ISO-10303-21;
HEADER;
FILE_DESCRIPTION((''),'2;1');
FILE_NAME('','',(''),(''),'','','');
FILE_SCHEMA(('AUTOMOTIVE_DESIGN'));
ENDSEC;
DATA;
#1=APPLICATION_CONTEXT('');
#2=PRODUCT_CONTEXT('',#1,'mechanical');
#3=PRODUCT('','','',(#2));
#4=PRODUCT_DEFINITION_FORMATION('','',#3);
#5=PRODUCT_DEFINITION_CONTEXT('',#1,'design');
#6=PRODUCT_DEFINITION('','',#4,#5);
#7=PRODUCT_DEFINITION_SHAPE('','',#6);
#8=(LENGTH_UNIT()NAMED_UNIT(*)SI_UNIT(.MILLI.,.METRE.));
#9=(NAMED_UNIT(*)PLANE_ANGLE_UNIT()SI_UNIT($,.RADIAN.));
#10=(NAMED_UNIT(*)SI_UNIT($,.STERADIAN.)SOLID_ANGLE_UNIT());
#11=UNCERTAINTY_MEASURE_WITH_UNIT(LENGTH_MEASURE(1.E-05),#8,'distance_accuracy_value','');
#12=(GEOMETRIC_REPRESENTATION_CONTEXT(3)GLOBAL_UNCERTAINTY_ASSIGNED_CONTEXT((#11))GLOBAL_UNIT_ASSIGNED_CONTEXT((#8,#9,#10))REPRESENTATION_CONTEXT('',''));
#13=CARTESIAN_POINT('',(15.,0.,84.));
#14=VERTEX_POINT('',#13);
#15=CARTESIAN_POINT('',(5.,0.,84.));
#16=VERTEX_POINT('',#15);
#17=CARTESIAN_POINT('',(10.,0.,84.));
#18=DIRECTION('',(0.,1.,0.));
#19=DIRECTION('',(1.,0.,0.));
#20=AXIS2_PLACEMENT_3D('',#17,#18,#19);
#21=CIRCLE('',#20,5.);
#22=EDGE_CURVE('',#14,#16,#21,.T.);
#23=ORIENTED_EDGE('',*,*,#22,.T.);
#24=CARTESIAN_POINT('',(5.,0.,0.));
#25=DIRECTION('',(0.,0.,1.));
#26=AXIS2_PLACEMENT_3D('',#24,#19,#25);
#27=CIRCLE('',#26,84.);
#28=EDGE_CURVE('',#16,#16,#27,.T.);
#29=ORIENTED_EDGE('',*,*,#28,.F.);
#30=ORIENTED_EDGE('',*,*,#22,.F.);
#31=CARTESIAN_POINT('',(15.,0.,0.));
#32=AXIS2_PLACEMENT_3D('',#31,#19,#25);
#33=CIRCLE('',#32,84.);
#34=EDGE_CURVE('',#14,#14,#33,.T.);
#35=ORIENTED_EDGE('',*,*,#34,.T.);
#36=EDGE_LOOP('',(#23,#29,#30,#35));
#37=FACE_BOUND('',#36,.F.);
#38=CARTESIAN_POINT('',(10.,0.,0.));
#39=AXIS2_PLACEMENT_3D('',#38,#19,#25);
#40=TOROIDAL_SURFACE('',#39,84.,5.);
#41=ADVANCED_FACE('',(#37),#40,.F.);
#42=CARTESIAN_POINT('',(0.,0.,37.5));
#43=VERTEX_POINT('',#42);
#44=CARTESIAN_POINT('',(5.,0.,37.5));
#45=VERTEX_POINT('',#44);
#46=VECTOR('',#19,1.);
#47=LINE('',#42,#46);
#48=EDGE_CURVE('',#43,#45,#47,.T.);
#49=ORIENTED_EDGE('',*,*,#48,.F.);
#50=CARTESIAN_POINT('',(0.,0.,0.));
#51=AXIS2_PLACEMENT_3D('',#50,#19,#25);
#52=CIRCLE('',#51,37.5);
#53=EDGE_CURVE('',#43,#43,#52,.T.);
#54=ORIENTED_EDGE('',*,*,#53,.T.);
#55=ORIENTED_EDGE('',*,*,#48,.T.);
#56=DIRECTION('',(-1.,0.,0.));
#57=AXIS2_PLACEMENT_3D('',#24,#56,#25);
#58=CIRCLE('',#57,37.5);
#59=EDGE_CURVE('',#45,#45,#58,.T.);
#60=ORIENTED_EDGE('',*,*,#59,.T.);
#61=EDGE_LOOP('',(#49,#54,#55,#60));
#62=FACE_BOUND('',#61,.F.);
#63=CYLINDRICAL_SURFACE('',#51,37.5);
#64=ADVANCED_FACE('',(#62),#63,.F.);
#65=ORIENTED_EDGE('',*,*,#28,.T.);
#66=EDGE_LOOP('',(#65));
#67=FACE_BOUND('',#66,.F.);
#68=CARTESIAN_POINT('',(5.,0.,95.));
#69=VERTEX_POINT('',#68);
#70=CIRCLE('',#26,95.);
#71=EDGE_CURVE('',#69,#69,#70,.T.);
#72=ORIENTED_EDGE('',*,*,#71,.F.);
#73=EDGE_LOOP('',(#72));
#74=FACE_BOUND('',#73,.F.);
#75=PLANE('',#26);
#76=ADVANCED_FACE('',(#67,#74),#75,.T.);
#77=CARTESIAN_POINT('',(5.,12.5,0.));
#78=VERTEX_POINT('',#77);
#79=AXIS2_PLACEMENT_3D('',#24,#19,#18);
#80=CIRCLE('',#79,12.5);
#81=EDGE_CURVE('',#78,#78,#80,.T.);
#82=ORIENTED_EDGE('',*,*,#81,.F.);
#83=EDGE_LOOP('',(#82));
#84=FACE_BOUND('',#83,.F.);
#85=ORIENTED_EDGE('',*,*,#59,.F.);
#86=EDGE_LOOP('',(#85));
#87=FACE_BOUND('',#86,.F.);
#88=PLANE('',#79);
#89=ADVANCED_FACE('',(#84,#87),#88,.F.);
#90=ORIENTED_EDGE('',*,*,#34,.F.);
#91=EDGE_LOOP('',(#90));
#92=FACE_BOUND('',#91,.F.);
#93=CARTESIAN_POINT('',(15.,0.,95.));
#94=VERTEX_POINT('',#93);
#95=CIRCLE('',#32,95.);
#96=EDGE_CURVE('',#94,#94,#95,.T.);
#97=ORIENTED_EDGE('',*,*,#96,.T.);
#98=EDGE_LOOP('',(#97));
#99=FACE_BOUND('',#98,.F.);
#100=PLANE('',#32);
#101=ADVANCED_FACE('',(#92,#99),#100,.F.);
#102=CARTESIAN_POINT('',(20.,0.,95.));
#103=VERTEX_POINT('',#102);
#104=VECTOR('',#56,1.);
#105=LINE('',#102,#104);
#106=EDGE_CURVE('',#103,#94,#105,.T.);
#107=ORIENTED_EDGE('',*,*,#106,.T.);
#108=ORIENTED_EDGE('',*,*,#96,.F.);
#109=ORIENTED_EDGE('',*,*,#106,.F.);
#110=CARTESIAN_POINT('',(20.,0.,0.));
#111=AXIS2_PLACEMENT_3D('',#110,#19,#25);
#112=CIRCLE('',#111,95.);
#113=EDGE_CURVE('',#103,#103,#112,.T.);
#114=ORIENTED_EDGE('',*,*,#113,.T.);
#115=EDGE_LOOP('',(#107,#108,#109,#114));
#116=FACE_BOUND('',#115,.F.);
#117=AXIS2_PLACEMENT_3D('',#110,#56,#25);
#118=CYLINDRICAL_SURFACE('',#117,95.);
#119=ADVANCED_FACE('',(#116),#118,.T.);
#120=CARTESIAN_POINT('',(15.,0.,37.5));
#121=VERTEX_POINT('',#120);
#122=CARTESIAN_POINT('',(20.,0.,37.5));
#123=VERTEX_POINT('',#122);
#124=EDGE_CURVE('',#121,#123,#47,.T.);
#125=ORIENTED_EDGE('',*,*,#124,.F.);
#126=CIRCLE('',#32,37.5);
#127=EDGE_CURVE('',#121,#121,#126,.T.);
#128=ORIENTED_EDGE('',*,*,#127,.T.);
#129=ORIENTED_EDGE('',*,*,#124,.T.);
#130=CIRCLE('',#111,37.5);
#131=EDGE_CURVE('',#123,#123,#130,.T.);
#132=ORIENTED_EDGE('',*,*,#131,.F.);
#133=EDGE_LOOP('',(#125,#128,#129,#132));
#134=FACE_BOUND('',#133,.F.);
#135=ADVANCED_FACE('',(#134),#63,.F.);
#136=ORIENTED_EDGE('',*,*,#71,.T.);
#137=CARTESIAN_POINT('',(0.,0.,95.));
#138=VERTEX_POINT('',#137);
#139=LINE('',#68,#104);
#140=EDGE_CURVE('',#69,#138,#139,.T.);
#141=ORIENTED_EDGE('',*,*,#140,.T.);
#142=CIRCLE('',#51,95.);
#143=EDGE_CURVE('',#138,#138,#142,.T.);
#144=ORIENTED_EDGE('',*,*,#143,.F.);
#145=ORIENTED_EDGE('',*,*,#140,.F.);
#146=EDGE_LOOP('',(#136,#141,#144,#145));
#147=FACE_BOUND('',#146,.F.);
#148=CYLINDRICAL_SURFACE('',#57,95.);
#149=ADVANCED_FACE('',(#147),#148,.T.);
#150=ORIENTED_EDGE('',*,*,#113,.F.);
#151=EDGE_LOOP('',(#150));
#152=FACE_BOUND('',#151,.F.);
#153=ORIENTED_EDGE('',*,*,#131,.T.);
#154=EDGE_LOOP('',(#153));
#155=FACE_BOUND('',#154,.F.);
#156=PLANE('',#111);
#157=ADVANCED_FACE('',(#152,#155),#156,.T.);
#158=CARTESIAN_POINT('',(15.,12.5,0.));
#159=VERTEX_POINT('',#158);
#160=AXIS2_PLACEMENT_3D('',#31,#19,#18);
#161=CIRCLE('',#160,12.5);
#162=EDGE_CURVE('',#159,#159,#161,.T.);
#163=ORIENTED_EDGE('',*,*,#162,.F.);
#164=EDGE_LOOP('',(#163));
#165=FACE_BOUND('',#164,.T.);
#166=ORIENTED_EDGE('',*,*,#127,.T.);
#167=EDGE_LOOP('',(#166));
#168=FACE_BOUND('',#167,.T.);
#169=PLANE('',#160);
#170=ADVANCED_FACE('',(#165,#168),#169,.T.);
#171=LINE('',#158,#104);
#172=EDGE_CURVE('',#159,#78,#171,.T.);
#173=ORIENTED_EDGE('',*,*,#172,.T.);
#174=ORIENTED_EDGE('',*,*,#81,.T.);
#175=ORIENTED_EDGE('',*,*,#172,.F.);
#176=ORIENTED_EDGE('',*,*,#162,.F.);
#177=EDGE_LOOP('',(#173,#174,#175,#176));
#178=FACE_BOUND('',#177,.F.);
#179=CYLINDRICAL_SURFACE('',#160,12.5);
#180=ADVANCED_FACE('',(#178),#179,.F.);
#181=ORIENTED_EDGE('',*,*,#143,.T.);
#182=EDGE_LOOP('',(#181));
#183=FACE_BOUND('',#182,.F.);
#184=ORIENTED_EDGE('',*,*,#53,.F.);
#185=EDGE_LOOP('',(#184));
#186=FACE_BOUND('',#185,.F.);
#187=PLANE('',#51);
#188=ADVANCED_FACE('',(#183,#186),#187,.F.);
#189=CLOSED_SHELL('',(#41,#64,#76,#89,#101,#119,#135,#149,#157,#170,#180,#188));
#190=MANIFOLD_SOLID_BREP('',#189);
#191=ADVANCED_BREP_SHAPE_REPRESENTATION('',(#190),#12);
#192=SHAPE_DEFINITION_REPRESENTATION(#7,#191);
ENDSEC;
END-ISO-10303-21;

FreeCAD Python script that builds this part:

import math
import FreeCAD as App
import Part
import Sketcher

V = App.Vector
Q = App.Units.Quantity

doc = App.newDocument("Part")
body = doc.addObject("PartDesign::Body", "Body")

sketch1 = body.newObject("Sketcher::SketchObject", "Sketch")
sketch1.AttachmentSupport = (doc.getObject("XZ_Plane"), [""])
sketch1.MapMode = "FlatFace"
sketch1.addGeometry([
    Part.LineSegment(V(0, 95, 0), V(0, 38, 0)),
    Part.LineSegment(V(0, 38, 0), V(20, 38, 0)),
    Part.LineSegment(V(20, 38, 0), V(20, 95, 0)),
    Part.LineSegment(V(20, 95, 0), V(15, 95, 0)),
    Part.LineSegment(V(15, 95, 0), V(15, 84, 0)),
    Part.ArcOfCircle(Part.Circle(V(10, 84, 0), V(0, 0, 1), 5), math.radians(180), math.radians(360)),
    Part.LineSegment(V(5, 84, 0), V(5, 95, 0)),
    Part.LineSegment(V(5, 95, 0), V(0, 95, 0)),
], False)
sketch1.addConstraint([
    Sketcher.Constraint("Coincident", 0, 2, 1, 1),
    Sketcher.Constraint("Coincident", 1, 2, 2, 1),
    Sketcher.Constraint("Coincident", 2, 2, 3, 1),
    Sketcher.Constraint("Coincident", 3, 2, 4, 1),
    Sketcher.Constraint("Tangent", 4, 2, 5, 2),
    Sketcher.Constraint("Tangent", 5, 1, 6, 1),
    Sketcher.Constraint("Coincident", 6, 2, 7, 1),
    Sketcher.Constraint("Coincident", 7, 2, 0, 1),
    Sketcher.Constraint("Vertical", 0),
    Sketcher.Constraint("Horizontal", 1),
    Sketcher.Constraint("Vertical", 2),
    Sketcher.Constraint("Horizontal", 3),
    Sketcher.Constraint("Vertical", 4),
    Sketcher.Constraint("Vertical", 6),
    Sketcher.Constraint("Horizontal", 7),
    Sketcher.Constraint("PointOnObject", 0, 2, -2),
    Sketcher.Constraint("Horizontal", 3, 2, 6, 2),
    Sketcher.Constraint("Equal", 3, 7),
    Sketcher.Constraint("Radius", 5, Q("5 mm")),
    Sketcher.Constraint("DistanceX", 1, 1, 1, 2, Q("20 mm")),
    Sketcher.Constraint("DistanceY", 4, 2, 4, 1, Q("11 mm")),
    Sketcher.Constraint("DistanceY", 0, 2, 0, 1, Q("57.5 mm")),
    Sketcher.Constraint("DistanceY", -1, 1, 5, 3, Q("84 mm")),
])
revolution = body.newObject("PartDesign::Revolution", "Revolution")
revolution.Profile = sketch1
revolution.ReferenceAxis = (sketch1, ["H_Axis"])
revolution.Angle = 360

sketch2 = body.newObject("Sketcher::SketchObject", "Sketch001")
sketch2.AttachmentSupport = (doc.getObject("YZ_Plane"), [""])
sketch2.MapMode = "FlatFace"
sketch2.AttachmentOffset = App.Placement(V(0, 0, 15), App.Rotation())
sketch2.addGeometry([
    Part.Circle(V(0, 0, 0), V(0, 0, 1), 38),
    Part.Circle(V(0, 0, 0), V(0, 0, 1), 12),
], False)
sketch2.addConstraint([
    Sketcher.Constraint("Coincident", 0, 3, -1, 1),
    Sketcher.Constraint("Coincident", 1, 3, -1, 1),
    Sketcher.Constraint("Diameter", 0, Q("75 mm")),
    Sketcher.Constraint("Diameter", 1, Q("25 mm")),
])
pad1 = body.newObject("PartDesign::Pad", "Pad")
pad1.Profile = sketch2
pad1.Length = 10
pad1.Reversed = True

doc.recompute()
